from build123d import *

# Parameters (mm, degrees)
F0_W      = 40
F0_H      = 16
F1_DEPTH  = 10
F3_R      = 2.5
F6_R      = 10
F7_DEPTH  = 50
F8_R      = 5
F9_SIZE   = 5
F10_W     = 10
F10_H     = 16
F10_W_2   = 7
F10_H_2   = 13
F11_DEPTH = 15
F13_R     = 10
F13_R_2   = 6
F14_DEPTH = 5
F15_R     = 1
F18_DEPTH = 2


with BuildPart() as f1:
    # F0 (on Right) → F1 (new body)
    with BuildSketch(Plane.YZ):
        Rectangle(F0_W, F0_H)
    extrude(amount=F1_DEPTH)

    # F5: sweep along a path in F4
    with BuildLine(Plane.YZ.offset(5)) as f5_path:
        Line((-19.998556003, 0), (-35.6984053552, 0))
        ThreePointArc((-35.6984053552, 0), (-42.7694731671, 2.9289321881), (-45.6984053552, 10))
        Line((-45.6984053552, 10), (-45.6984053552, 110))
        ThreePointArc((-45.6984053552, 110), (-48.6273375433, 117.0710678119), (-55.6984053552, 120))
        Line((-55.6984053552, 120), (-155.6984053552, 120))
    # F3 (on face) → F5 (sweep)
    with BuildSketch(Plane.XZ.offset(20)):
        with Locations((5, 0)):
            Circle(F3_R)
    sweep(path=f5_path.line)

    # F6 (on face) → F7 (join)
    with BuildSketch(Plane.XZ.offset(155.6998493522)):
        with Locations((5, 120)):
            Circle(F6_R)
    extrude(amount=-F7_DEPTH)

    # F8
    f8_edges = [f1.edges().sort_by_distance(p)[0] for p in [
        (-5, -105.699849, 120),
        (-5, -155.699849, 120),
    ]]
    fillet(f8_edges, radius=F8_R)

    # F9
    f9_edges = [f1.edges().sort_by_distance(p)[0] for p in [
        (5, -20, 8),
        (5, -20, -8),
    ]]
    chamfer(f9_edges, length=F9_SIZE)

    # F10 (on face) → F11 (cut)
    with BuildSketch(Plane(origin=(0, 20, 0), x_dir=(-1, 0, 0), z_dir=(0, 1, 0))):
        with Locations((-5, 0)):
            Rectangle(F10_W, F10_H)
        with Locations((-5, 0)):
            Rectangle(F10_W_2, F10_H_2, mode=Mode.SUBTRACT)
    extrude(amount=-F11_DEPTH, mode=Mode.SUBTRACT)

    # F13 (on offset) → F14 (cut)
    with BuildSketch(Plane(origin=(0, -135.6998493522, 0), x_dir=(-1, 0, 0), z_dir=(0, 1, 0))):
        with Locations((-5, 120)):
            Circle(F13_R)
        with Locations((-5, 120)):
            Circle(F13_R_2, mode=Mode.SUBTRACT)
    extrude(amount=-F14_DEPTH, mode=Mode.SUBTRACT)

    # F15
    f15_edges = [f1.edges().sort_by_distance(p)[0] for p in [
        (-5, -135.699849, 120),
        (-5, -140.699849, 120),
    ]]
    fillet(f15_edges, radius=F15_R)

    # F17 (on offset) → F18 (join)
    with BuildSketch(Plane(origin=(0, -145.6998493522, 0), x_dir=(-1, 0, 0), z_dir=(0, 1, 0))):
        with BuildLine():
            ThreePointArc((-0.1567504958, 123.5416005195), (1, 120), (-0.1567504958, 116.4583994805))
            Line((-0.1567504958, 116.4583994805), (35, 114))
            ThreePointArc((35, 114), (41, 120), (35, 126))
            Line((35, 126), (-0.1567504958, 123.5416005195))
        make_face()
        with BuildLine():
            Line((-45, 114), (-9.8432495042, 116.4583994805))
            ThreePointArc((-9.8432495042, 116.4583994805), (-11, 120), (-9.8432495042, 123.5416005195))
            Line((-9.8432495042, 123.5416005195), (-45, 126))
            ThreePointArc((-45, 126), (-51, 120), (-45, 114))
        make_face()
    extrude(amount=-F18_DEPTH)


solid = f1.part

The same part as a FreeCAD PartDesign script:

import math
import FreeCAD as App
import Part
import Sketcher
from FreeCAD import Vector
Q = App.Units.Quantity


def edges_at(feature, points):
    """Names of the edges that pass closest to the given points."""
    edges = feature.Shape.Edges
    near = lambda p: min(range(len(edges)), key=lambda i: edges[i].distToShape(Part.Vertex(*p))[0])
    return sorted({f"Edge{near(p) + 1}" for p in points})


def add_polygon(sketch, points):
    """Adds a closed chain of lines whose ends are joined by coincident constraints."""
    first, n = sketch.GeometryCount, len(points)
    for a, b in zip(points, points[1:] + points[:1]):
        sketch.addGeometry(Part.LineSegment(App.Vector(*a, 0), App.Vector(*b, 0)), False)
    for i in range(n):
        sketch.addConstraint(Sketcher.Constraint("Coincident", first + i, 2, first + (i + 1) % n, 1))

doc = App.newDocument("Part")
body = doc.addObject("PartDesign::Body", "Body")

sketch1 = body.newObject("Sketcher::SketchObject", "Sketch")
sketch1.AttachmentSupport = (doc.getObject("YZ_Plane"), [""])
sketch1.MapMode = "FlatFace"
add_polygon(sketch1, [(-20, 8), (-20, -8), (20, -8), (20, 8)])
sketch1.addConstraint([
    Sketcher.Constraint("Vertical", 0),
    Sketcher.Constraint("Horizontal", 1),
    Sketcher.Constraint("Vertical", 2),
    Sketcher.Constraint("Horizontal", 3),
    Sketcher.Constraint("Symmetric", 0, 2, 2, 2, -1, 1),
    Sketcher.Constraint("DistanceX", 1, 1, 1, 2, 40.0),
    Sketcher.Constraint("DistanceY", 0, 2, 0, 1, 16.0),
])
pad1 = body.newObject("PartDesign::Pad", "Pad")
pad1.Profile = sketch1
pad1.Length = 10

sketch2 = body.newObject("Sketcher::SketchObject", "Sketch001")
sketch2.AttachmentSupport = (doc.getObject("XZ_Plane"), [""])
sketch2.MapMode = "FlatFace"
sketch2.AttachmentOffset = App.Placement(Vector(0, 0, 20), App.Rotation())
sketch2.addGeometry(Part.Circle(Vector(5, 0, 0), Vector(0, 0, 1), 2.5), False)
sketch2.addConstraint([
    Sketcher.Constraint("PointOnObject", 0, 3, -1),
    Sketcher.Constraint("Diameter", 0, 5.0),
    Sketcher.Constraint("DistanceX", -1, 1, 0, 3, 5.0),
])

sketch3 = body.newObject("Sketcher::SketchObject", "Sketch002")
sketch3.AttachmentSupport = (doc.getObject("YZ_Plane"), [""])
sketch3.MapMode = "FlatFace"
sketch3.AttachmentOffset = App.Placement(Vector(0, 0, 5), App.Rotation())
sketch3.addGeometry([
    Part.LineSegment(Vector(-20, 0, 0), Vector(-36, 0, 0)),
    Part.ArcOfCircle(Part.Circle(Vector(-36, 10, 0), Vector(0, 0, 1), 10), math.radians(180), math.radians(270)),
    Part.LineSegment(Vector(-46, 10, 0), Vector(-46, 110, 0)),
    Part.ArcOfCircle(Part.Circle(Vector(-56, 110, 0), Vector(0, 0, 1), 10), math.radians(0), math.radians(90)),
    Part.LineSegment(Vector(-56, 120, 0), Vector(-156, 120, 0)),
], False)
sketch3.addConstraint([
    Sketcher.Constraint("Tangent", 0, 2, 1, 2),
    Sketcher.Constraint("Tangent", 1, 1, 2, 1),
    Sketcher.Constraint("Tangent", 2, 2, 3, 1),
    Sketcher.Constraint("Tangent", 3, 2, 4, 1),
    Sketcher.Constraint("Horizontal", 0),
    Sketcher.Constraint("Vertical", 2),
    Sketcher.Constraint("Horizontal", 4),
    Sketcher.Constraint("Equal", 1, 3),
    Sketcher.Constraint("PointOnObject", 0, 1, -1),
    Sketcher.Constraint("Equal", 4, 2),
    Sketcher.Constraint("Radius", 1, 10.0),
    Sketcher.Constraint("DistanceX", 4, 2, 4, 1, 100.0),
    Sketcher.Constraint("DistanceX", 0, 2, 0, 1, 15.699849),
    Sketcher.Constraint("DistanceX", 1, 3, -1, 1, 35.698405),
])
doc.recompute()

additivepipe = body.newObject("PartDesign::AdditivePipe", "AdditivePipe")
additivepipe.Profile = sketch2
additivepipe.Spine = (sketch3, ["Edge1", "Edge2", "Edge3", "Edge4", "Edge5"])

sketch4 = body.newObject("Sketcher::SketchObject", "Sketch003")
sketch4.AttachmentSupport = (doc.getObject("XZ_Plane"), [""])
sketch4.MapMode = "FlatFace"
sketch4.AttachmentOffset = App.Placement(Vector(0, 0, 155.699849), App.Rotation())
sketch4.addGeometry(Part.Circle(Vector(5, 120, 0), Vector(0, 0, 1), 10), False)
sketch4.addConstraint([
    Sketcher.Constraint("Diameter", 0, 20.0),
    Sketcher.Constraint("DistanceX", -1, 1, 0, 3, 5.0),
    Sketcher.Constraint("DistanceY", -1, 1, 0, 3, 120.0),
])
pad2 = body.newObject("PartDesign::Pad", "Pad001")
pad2.Profile = sketch4
pad2.Length = 50
pad2.Reversed = True
doc.recompute()

fillet = body.newObject("PartDesign::Fillet", "Fillet")
fillet.Base = (pad2, edges_at(pad2, [(-5, -105.7, 120), (-5, -155.7, 120)]))
fillet.Radius = 5
doc.recompute()

chamfer = body.newObject("PartDesign::Chamfer", "Chamfer")
chamfer.Base = (fillet, edges_at(fillet, [(5, -20, 8), (5, -20, -8)]))
chamfer.Size = 5

sketch5 = body.newObject("Sketcher::SketchObject", "Sketch004")
sketch5.AttachmentSupport = (doc.getObject("XZ_Plane"), [""])
sketch5.MapMode = "FlatFace"
sketch5.AttachmentOffset = App.Placement(Vector(0, 0, -20), App.Rotation())
add_polygon(sketch5, [(10, 8), (10, -8), (0, -8), (0, 8)])
add_polygon(sketch5, [(2, -6), (8, -6), (8, 6), (2, 6)])
sketch5.addConstraint([
    Sketcher.Constraint("Vertical", 0),
    Sketcher.Constraint("Horizontal", 1),
    Sketcher.Constraint("Vertical", 2),
    Sketcher.Constraint("Horizontal", 3),
    Sketcher.Constraint("Horizontal", 4),
    Sketcher.Constraint("Vertical", 5),
    Sketcher.Constraint("Horizontal", 6),
    Sketcher.Constraint("Vertical", 7),
    Sketcher.Constraint("Symmetric", 1, 2, 2, 2, -1, 1),
    Sketcher.Constraint("DistanceX", 1, 2, 1, 1, 10.0),
    Sketcher.Constraint("DistanceX", 4, 1, 4, 2, 7.0),
    Sketcher.Constraint("DistanceY", 0, 2, 0, 1, 16.0),
    Sketcher.Constraint("DistanceY", 5, 1, 5, 2, 13.0),
    Sketcher.Constraint("DistanceX", -1, 1, 4, 2, 8.5),
    Sketcher.Constraint("DistanceY", 4, 2, -1, 1, 6.5),
])
pocket1 = body.newObject("PartDesign::Pocket", "Pocket")
pocket1.Profile = sketch5
pocket1.Length = 15
pocket1.Reversed = True

sketch6 = body.newObject("Sketcher::SketchObject", "Sketch005")
sketch6.AttachmentSupport = (doc.getObject("XZ_Plane"), [""])
sketch6.MapMode = "FlatFace"
sketch6.AttachmentOffset = App.Placement(Vector(0, 0, 135.699849), App.Rotation())
sketch6.addGeometry([
    Part.Circle(Vector(5, 120, 0), Vector(0, 0, 1), 10),
    Part.Circle(Vector(5, 120, 0), Vector(0, 0, 1), 6),
], False)
sketch6.addConstraint([
    Sketcher.Constraint("Coincident", 1, 3, 0, 3),
    Sketcher.Constraint("Diameter", 0, 20.0),
    Sketcher.Constraint("Diameter", 1, 12.0),
    Sketcher.Constraint("DistanceX", -1, 1, 0, 3, 5.0),
    Sketcher.Constraint("DistanceY", -1, 1, 0, 3, 120.0),
])
pocket2 = body.newObject("PartDesign::Pocket", "Pocket001")
pocket2.Profile = sketch6
pocket2.Length = 5
pocket2.Reversed = True
doc.recompute()

fillet2 = body.newObject("PartDesign::Fillet", "Fillet001")
fillet2.Base = (pocket2, edges_at(pocket2, [(-5, -135.7, 120), (-5, -140.7, 120)]))
fillet2.Radius = 1

sketch7 = body.newObject("Sketcher::SketchObject", "Sketch006")
sketch7.AttachmentSupport = (doc.getObject("XZ_Plane"), [""])
sketch7.MapMode = "FlatFace"
sketch7.AttachmentOffset = App.Placement(Vector(0, 0, 145.699849), App.Rotation())
sketch7.addGeometry([
    Part.ArcOfCircle(Part.Circle(Vector(5, 120, 0), Vector(0, 0, 1), 6), math.radians(144), math.radians(216)),
    Part.LineSegment(Vector(0, 116, 0), Vector(-35, 114, 0)),
    Part.ArcOfCircle(Part.Circle(Vector(-35, 120, 0), Vector(0, 0, 1), 6), math.radians(90), math.radians(270)),
    Part.LineSegment(Vector(-35, 126, 0), Vector(0, 124, 0)),
    Part.LineSegment(Vector(45, 114, 0), Vector(10, 116, 0)),
    Part.ArcOfCircle(Part.Circle(Vector(5, 120, 0), Vector(0, 0, 1), 6), math.radians(-36), math.radians(36)),
    Part.LineSegment(Vector(10, 124, 0), Vector(45, 126, 0)),
    Part.ArcOfCircle(Part.Circle(Vector(45, 120, 0), Vector(0, 0, 1), 6), math.radians(-90), math.radians(90)),
], False)
sketch7.addConstraint([
    Sketcher.Constraint("Coincident", 0, 2, 1, 1),
    Sketcher.Constraint("Coincident", 1, 2, 2, 2),
    Sketcher.Constraint("Coincident", 2, 1, 3, 1),
    Sketcher.Constraint("Coincident", 3, 2, 0, 1),
    Sketcher.Constraint("Coincident", 4, 2, 5, 1),
    Sketcher.Constraint("Coincident", 5, 2, 6, 1),
    Sketcher.Constraint("Coincident", 6, 2, 7, 2),
    Sketcher.Constraint("Coincident", 7, 1, 4, 1),
    Sketcher.Constraint("Coincident", 5, 3, 0, 3),
    Sketcher.Constraint("Equal", 0, 2),
    Sketcher.Constraint("Equal", 2, 5),
    Sketcher.Constraint("Equal", 5, 7),
    Sketcher.Constraint("Parallel", 3, 4),
    Sketcher.Constraint("Parallel", 1, 6),
    Sketcher.Constraint("Horizontal", 0, 3, 2, 3),
    Sketcher.Constraint("Horizontal", 5, 3, 7, 3),
    Sketcher.Constraint("Horizontal", 0, 2, 4, 2),
    Sketcher.Constraint("Horizontal", 3, 2, 5, 2),
    Sketcher.Constraint("Vertical", 2, 3, 1, 2),
    Sketcher.Constraint("Vertical", 1, 2, 2, 1),
    Sketcher.Constraint("Vertical", 0, 2, 3, 2),
    Sketcher.Constraint("Vertical", 7, 3, 6, 2),
    Sketcher.Constraint("Radius", 0, 6.0),
    Sketcher.Constraint("Angle", 1, Q("-176 deg")),
    Sketcher.Constraint("DistanceX", -1, 1, 0, 3, 5.0),
    Sketcher.Constraint("DistanceY", -1, 1, 0, 3, 120.0),
    Sketcher.Constraint("DistanceX", 2, 3, -1, 1, 35.0),
])
pad3 = body.newObject("PartDesign::Pad", "Pad002")
pad3.Profile = sketch7
pad3.Length = 2

doc.recompute()
